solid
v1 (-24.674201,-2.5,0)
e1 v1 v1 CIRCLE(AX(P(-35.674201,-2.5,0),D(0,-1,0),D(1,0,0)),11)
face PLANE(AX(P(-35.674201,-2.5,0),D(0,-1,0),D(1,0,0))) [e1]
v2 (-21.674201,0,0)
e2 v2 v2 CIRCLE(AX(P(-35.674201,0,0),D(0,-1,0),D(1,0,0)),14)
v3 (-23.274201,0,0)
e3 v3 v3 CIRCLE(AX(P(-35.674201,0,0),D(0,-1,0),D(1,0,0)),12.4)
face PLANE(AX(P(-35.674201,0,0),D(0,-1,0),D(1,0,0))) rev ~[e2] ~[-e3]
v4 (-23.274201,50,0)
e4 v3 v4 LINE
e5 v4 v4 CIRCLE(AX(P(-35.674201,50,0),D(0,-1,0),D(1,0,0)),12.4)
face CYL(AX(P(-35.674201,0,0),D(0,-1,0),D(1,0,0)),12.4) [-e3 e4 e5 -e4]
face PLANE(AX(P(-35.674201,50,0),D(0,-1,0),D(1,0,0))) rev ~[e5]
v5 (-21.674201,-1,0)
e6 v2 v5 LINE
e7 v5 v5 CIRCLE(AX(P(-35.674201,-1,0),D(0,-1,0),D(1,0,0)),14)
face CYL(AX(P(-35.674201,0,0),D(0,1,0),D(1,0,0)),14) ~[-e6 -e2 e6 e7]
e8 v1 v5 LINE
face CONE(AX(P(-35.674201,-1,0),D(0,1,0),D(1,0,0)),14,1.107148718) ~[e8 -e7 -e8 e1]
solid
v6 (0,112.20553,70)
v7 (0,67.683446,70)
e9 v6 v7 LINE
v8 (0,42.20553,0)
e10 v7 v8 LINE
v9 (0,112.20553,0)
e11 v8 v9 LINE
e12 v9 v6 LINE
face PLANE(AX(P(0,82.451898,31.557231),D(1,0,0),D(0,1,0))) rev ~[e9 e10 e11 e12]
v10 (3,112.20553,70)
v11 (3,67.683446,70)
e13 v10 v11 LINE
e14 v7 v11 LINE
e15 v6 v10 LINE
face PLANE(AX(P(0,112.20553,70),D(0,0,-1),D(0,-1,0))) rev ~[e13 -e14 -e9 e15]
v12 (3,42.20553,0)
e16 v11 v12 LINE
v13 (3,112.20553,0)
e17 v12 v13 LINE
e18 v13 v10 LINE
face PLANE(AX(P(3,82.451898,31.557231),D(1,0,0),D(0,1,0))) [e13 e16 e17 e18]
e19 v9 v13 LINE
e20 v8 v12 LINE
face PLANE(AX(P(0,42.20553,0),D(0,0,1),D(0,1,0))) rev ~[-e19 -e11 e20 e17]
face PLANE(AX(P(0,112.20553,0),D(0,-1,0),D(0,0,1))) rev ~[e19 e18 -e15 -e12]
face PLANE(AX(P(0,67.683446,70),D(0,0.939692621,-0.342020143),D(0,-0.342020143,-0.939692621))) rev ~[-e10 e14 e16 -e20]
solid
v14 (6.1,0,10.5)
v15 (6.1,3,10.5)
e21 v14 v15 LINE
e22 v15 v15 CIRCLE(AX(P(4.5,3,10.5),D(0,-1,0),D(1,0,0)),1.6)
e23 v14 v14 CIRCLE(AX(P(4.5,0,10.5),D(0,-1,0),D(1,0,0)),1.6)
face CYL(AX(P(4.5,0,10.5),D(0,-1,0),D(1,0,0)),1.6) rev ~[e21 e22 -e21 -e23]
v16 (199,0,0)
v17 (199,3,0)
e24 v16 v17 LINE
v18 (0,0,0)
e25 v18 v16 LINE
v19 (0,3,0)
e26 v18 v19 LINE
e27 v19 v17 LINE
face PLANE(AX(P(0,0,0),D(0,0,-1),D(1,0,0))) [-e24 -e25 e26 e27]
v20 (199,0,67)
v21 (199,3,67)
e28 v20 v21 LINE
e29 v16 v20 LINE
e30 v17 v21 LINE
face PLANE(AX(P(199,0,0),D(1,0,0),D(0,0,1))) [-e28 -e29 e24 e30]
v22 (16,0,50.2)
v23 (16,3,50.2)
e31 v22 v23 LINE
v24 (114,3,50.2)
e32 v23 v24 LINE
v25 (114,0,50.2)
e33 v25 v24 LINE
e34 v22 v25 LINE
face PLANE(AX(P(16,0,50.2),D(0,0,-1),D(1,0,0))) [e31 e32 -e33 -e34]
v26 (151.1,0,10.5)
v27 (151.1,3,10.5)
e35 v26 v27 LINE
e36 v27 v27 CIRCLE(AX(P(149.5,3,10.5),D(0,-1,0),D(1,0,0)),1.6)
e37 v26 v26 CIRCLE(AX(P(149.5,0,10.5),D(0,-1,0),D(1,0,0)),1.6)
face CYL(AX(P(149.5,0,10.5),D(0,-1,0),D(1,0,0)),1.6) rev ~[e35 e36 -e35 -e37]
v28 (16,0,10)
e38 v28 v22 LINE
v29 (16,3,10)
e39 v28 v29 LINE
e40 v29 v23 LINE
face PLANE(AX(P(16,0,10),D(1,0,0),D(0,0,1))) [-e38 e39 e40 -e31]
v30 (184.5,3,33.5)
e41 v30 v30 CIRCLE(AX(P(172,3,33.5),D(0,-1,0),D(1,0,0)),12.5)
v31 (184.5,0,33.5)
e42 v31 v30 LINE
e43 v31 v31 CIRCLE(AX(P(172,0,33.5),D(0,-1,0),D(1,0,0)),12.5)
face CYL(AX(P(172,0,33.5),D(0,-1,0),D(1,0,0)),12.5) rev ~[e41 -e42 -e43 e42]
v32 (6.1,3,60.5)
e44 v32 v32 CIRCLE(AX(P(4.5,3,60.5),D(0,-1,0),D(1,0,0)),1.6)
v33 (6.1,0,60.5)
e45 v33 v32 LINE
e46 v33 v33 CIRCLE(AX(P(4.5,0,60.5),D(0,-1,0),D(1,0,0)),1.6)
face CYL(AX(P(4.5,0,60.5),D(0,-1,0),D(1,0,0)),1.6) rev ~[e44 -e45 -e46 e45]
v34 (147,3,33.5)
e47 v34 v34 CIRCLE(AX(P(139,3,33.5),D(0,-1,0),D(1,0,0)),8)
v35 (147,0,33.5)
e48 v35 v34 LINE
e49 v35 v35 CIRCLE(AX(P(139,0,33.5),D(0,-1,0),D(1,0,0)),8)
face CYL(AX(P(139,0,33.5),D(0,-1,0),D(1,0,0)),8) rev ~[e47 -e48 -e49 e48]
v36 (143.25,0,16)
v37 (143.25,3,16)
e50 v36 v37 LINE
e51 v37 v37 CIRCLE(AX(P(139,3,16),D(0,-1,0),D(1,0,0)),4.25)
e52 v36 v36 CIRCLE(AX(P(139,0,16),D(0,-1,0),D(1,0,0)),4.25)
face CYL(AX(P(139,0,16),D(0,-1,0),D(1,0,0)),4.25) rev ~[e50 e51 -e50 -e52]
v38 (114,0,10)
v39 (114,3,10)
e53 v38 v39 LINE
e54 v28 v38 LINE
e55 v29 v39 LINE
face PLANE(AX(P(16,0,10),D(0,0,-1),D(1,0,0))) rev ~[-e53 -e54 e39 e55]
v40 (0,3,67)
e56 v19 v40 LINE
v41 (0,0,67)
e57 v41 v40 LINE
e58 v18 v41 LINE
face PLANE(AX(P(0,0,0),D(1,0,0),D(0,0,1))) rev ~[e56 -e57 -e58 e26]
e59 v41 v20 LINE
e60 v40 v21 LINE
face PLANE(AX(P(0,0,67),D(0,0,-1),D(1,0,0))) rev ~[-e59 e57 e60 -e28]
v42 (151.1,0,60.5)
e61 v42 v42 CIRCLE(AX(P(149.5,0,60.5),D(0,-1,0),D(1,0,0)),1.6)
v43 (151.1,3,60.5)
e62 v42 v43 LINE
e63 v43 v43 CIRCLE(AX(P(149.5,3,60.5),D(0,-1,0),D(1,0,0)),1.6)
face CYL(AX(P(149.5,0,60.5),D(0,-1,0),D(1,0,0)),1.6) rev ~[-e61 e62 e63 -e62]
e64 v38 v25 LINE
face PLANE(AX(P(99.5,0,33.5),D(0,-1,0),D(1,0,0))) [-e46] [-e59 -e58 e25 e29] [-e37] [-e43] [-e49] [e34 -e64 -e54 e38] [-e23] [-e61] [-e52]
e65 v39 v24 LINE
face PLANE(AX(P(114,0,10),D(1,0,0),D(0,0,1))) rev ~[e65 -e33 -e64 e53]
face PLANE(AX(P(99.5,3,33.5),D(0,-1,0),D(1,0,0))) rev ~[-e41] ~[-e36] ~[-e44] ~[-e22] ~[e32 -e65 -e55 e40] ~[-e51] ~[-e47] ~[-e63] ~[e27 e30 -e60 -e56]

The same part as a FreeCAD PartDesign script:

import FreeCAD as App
import Part
import Sketcher
Q = App.Units.Quantity


def edges_at(feature, points):
    """Names of the edges that pass closest to the given points."""
    edges = feature.Shape.Edges
    near = lambda p: min(range(len(edges)), key=lambda i: edges[i].distToShape(Part.Vertex(*p))[0])
    return sorted({f"Edge{near(p) + 1}" for p in points})

doc = App.newDocument("Part")
body = doc.addObject("PartDesign::Body", "Body")

# Sketch on XZ plane
sketch1 = doc.addObject("Sketcher::SketchObject", "Sketch")
body.addObject(sketch1)
sketch1.AttachmentSupport = (doc.XZ_Plane, [""])
sketch1.MapMode = "FlatFace"
sketch1.addGeometry([
    Part.LineSegment(App.Vector(0, 67, 0), App.Vector(0, 0, 0)),
    Part.LineSegment(App.Vector(0, 0, 0), App.Vector(199, 0, 0)),
    Part.LineSegment(App.Vector(199, 0, 0), App.Vector(199, 67, 0)),
    Part.LineSegment(App.Vector(199, 67, 0), App.Vector(0, 67, 0)),
], False)
sketch1.addConstraint([
    Sketcher.Constraint("Coincident", 0, 2, 1, 1),
    Sketcher.Constraint("Coincident", 1, 2, 2, 1),
    Sketcher.Constraint("Coincident", 2, 2, 3, 1),
    Sketcher.Constraint("Coincident", 3, 2, 0, 1),
    Sketcher.Constraint("Vertical", 0),
    Sketcher.Constraint("Horizontal", 1),
    Sketcher.Constraint("Vertical", 2),
    Sketcher.Constraint("Horizontal", 3),
    Sketcher.Constraint("Coincident", 0, 2, -1, 1),
    Sketcher.Constraint("DistanceX", 1, 1, 1, 2, 199.0),
    Sketcher.Constraint("DistanceY", 0, 2, 0, 1, 67.0),
])
pad1 = doc.addObject("PartDesign::Pad", "Pad")
body.addObject(pad1)
pad1.Profile = sketch1
pad1.Length = 3
pad1.Reversed = True

# Sketch on XZ plane
sketch2 = doc.addObject("Sketcher::SketchObject", "Sketch001")
body.addObject(sketch2)
sketch2.AttachmentSupport = (doc.XZ_Plane, [""])
sketch2.MapMode = "FlatFace"
sketch2.addGeometry([
    Part.Circle(App.Vector(4.5, 10.5, 0), App.Vector(0, 0, 1), 1.6),
    Part.Circle(App.Vector(4.5, 60.5, 0), App.Vector(0, 0, 1), 1.6),
    Part.Circle(App.Vector(149.5, 10.5, 0), App.Vector(0, 0, 1), 1.6),
    Part.Circle(App.Vector(149.5, 60.5, 0), App.Vector(0, 0, 1), 1.6),
], False)
sketch2.addConstraint([
    Sketcher.Constraint("Equal", 0, 1),
    Sketcher.Constraint("Equal", 1, 2),
    Sketcher.Constraint("Equal", 2, 3),
    Sketcher.Constraint("Horizontal", 0, 3, 2, 3),
    Sketcher.Constraint("Horizontal", 1, 3, 3, 3),
    Sketcher.Constraint("Vertical", 0, 3, 1, 3),
    Sketcher.Constraint("Vertical", 2, 3, 3, 3),
    Sketcher.Constraint("Diameter", 0, 3.2),
    Sketcher.Constraint("DistanceY", 0, 3, 1, 3, 50.0),
    Sketcher.Constraint("DistanceX", 0, 3, 2, 3, 145.0),
    Sketcher.Constraint("DistanceX", -1, 1, 0, 3, 4.5),
    Sketcher.Constraint("DistanceY", -1, 1, 0, 3, 10.5),
])
pocket1 = doc.addObject("PartDesign::Pocket", "Pocket")
body.addObject(pocket1)
pocket1.Profile = sketch2
pocket1.Type = "ThroughAll"

# Sketch on XZ plane
sketch3 = doc.addObject("Sketcher::SketchObject", "Sketch002")
body.addObject(sketch3)
sketch3.AttachmentSupport = (doc.XZ_Plane, [""])
sketch3.MapMode = "FlatFace"
sketch3.addGeometry([
    Part.LineSegment(App.Vector(16, 50, 0), App.Vector(16, 10, 0)),
    Part.LineSegment(App.Vector(16, 10, 0), App.Vector(114, 10, 0)),
    Part.LineSegment(App.Vector(114, 10, 0), App.Vector(114, 50, 0)),
    Part.LineSegment(App.Vector(114, 50, 0), App.Vector(16, 50, 0)),
], False)
sketch3.addConstraint([
    Sketcher.Constraint("Coincident", 0, 2, 1, 1),
    Sketcher.Constraint("Coincident", 1, 2, 2, 1),
    Sketcher.Constraint("Coincident", 2, 2, 3, 1),
    Sketcher.Constraint("Coincident", 3, 2, 0, 1),
    Sketcher.Constraint("Vertical", 0),
    Sketcher.Constraint("Horizontal", 1),
    Sketcher.Constraint("Vertical", 2),
    Sketcher.Constraint("Horizontal", 3),
    Sketcher.Constraint("DistanceX", 1, 1, 1, 2, 98.0),
    Sketcher.Constraint("DistanceY", 0, 2, 0, 1, 40.2),
    Sketcher.Constraint("DistanceX", -1, 1, 0, 2, 16.0),
    Sketcher.Constraint("DistanceY", -1, 1, 0, 2, 10.0),
])
pocket2 = doc.addObject("PartDesign::Pocket", "Pocket001")
body.addObject(pocket2)
pocket2.Profile = sketch3
pocket2.Type = "ThroughAll"

# Sketch on XZ plane
sketch4 = doc.addObject("Sketcher::SketchObject", "Sketch003")
body.addObject(sketch4)
sketch4.AttachmentSupport = (doc.XZ_Plane, [""])
sketch4.MapMode = "FlatFace"
sketch4.addGeometry([
    Part.Circle(App.Vector(139, 16, 0), App.Vector(0, 0, 1), 4.2),
    Part.Circle(App.Vector(139, 33.5, 0), App.Vector(0, 0, 1), 8),
], False)
sketch4.addConstraint([
    Sketcher.Constraint("Vertical", 0, 3, 1, 3),
    Sketcher.Constraint("Diameter", 1, 16.0),
    Sketcher.Constraint("Diameter", 0, 8.5),
    Sketcher.Constraint("DistanceX", -1, 1, 0, 3, 139.0),
    Sketcher.Constraint("DistanceY", -1, 1, 0, 3, 16.0),
    Sketcher.Constraint("DistanceY", -1, 1, 1, 3, 33.5),
])
pocket3 = doc.addObject("PartDesign::Pocket", "Pocket002")
body.addObject(pocket3)
pocket3.Profile = sketch4
pocket3.Type = "ThroughAll"

# Sketch on XZ plane
sketch5 = doc.addObject("Sketcher::SketchObject", "Sketch004")
body.addObject(sketch5)
sketch5.AttachmentSupport = (doc.XZ_Plane, [""])
sketch5.MapMode = "FlatFace"
sketch5.addGeometry(Part.Circle(App.Vector(172, 34, 0), App.Vector(0, 0, 1), 12), False)
sketch5.addConstraint([
    Sketcher.Constraint("Diameter", 0, 25.0),
    Sketcher.Constraint("DistanceX", -1, 1, 0, 3, 172.0),
    Sketcher.Constraint("DistanceY", -1, 1, 0, 3, 33.5),
])
pocket4 = doc.addObject("PartDesign::Pocket", "Pocket003")
body.addObject(pocket4)
pocket4.Profile = sketch5
pocket4.Type = "ThroughAll"
body2 = doc.addObject("PartDesign::Body", "Body001")

# Sketch on XZ plane
sketch6 = doc.addObject("Sketcher::SketchObject", "Sketch005")
body2.addObject(sketch6)
sketch6.AttachmentSupport = (doc.getObject("XZ_Plane001"), [""])
sketch6.MapMode = "FlatFace"
sketch6.addGeometry(Part.Circle(App.Vector(-36, 0, 0), App.Vector(0, 0, 1), 12), False)
sketch6.addConstraint([
    Sketcher.Constraint("PointOnObject", 0, 3, -1),
    Sketcher.Constraint("Diameter", 0, 24.8),
    Sketcher.Constraint("DistanceX", 0, 3, -1, 1, 35.674201),
])
pad2 = doc.addObject("PartDesign::Pad", "Pad001")
body2.addObject(pad2)
pad2.Profile = sketch6
pad2.Length = 50
pad2.Reversed = True

# Sketch on XZ plane
sketch7 = doc.addObject("Sketcher::SketchObject", "Sketch006")
body2.addObject(sketch7)
sketch7.AttachmentSupport = (doc.getObject("XZ_Plane001"), [""])
sketch7.MapMode = "FlatFace"
sketch7.addGeometry(Part.Circle(App.Vector(-36, 0, 0), App.Vector(0, 0, 1), 14), False)
sketch7.addConstraint([
    Sketcher.Constraint("PointOnObject", 0, 3, -1),
    Sketcher.Constraint("Diameter", 0, 28.0),
    Sketcher.Constraint("DistanceX", 0, 3, -1, 1, 35.674201),
])
pad3 = doc.addObject("PartDesign::Pad", "Pad002")
body2.addObject(pad3)
pad3.Profile = sketch7
pad3.Length = 2.5
doc.recompute()

chamfer = doc.addObject("PartDesign::Chamfer", "Chamfer")
body2.addObject(chamfer)
chamfer.Base = (pad3, edges_at(pad3, [(-49.674, -2.5, 0)]))
chamfer.ChamferType = "Two distances"
chamfer.Size = 3
chamfer.Size2 = 1.5
chamfer.FlipDirection = True
body3 = doc.addObject("PartDesign::Body", "Body002")

# Sketch on YZ plane
sketch8 = doc.addObject("Sketcher::SketchObject", "Sketch007")
body3.addObject(sketch8)
sketch8.AttachmentSupport = (doc.getObject("YZ_Plane002"), [""])
sketch8.MapMode = "FlatFace"
sketch8.addGeometry([
    Part.LineSegment(App.Vector(68, 70, 0), App.Vector(42, 0, 0)),
    Part.LineSegment(App.Vector(42, 0, 0), App.Vector(112, 0, 0)),
    Part.LineSegment(App.Vector(112, 0, 0), App.Vector(112, 70, 0)),
    Part.LineSegment(App.Vector(112, 70, 0), App.Vector(68, 70, 0)),
], False)
sketch8.addConstraint([
    Sketcher.Constraint("Coincident", 0, 2, 1, 1),
    Sketcher.Constraint("Coincident", 1, 2, 2, 1),
    Sketcher.Constraint("Coincident", 2, 2, 3, 1),
    Sketcher.Constraint("Coincident", 3, 2, 0, 1),
    Sketcher.Constraint("Horizontal", 1),
    Sketcher.Constraint("Vertical", 2),
    Sketcher.Constraint("Horizontal", 3),
    Sketcher.Constraint("PointOnObject", 0, 2, -1),
    Sketcher.Constraint("Equal", 1, 2),
    Sketcher.Constraint("DistanceX", 1, 1, 1, 2, 70.0),
    Sketcher.Constraint("Angle", 0, Q("-110 deg")),
    Sketcher.Constraint("DistanceX", -1, 1, 0, 2, 42.20553),
])
pad4 = doc.addObject("PartDesign::Pad", "Pad003")
body3.addObject(pad4)
pad4.Profile = sketch8
pad4.Length = 3

doc.recompute()
